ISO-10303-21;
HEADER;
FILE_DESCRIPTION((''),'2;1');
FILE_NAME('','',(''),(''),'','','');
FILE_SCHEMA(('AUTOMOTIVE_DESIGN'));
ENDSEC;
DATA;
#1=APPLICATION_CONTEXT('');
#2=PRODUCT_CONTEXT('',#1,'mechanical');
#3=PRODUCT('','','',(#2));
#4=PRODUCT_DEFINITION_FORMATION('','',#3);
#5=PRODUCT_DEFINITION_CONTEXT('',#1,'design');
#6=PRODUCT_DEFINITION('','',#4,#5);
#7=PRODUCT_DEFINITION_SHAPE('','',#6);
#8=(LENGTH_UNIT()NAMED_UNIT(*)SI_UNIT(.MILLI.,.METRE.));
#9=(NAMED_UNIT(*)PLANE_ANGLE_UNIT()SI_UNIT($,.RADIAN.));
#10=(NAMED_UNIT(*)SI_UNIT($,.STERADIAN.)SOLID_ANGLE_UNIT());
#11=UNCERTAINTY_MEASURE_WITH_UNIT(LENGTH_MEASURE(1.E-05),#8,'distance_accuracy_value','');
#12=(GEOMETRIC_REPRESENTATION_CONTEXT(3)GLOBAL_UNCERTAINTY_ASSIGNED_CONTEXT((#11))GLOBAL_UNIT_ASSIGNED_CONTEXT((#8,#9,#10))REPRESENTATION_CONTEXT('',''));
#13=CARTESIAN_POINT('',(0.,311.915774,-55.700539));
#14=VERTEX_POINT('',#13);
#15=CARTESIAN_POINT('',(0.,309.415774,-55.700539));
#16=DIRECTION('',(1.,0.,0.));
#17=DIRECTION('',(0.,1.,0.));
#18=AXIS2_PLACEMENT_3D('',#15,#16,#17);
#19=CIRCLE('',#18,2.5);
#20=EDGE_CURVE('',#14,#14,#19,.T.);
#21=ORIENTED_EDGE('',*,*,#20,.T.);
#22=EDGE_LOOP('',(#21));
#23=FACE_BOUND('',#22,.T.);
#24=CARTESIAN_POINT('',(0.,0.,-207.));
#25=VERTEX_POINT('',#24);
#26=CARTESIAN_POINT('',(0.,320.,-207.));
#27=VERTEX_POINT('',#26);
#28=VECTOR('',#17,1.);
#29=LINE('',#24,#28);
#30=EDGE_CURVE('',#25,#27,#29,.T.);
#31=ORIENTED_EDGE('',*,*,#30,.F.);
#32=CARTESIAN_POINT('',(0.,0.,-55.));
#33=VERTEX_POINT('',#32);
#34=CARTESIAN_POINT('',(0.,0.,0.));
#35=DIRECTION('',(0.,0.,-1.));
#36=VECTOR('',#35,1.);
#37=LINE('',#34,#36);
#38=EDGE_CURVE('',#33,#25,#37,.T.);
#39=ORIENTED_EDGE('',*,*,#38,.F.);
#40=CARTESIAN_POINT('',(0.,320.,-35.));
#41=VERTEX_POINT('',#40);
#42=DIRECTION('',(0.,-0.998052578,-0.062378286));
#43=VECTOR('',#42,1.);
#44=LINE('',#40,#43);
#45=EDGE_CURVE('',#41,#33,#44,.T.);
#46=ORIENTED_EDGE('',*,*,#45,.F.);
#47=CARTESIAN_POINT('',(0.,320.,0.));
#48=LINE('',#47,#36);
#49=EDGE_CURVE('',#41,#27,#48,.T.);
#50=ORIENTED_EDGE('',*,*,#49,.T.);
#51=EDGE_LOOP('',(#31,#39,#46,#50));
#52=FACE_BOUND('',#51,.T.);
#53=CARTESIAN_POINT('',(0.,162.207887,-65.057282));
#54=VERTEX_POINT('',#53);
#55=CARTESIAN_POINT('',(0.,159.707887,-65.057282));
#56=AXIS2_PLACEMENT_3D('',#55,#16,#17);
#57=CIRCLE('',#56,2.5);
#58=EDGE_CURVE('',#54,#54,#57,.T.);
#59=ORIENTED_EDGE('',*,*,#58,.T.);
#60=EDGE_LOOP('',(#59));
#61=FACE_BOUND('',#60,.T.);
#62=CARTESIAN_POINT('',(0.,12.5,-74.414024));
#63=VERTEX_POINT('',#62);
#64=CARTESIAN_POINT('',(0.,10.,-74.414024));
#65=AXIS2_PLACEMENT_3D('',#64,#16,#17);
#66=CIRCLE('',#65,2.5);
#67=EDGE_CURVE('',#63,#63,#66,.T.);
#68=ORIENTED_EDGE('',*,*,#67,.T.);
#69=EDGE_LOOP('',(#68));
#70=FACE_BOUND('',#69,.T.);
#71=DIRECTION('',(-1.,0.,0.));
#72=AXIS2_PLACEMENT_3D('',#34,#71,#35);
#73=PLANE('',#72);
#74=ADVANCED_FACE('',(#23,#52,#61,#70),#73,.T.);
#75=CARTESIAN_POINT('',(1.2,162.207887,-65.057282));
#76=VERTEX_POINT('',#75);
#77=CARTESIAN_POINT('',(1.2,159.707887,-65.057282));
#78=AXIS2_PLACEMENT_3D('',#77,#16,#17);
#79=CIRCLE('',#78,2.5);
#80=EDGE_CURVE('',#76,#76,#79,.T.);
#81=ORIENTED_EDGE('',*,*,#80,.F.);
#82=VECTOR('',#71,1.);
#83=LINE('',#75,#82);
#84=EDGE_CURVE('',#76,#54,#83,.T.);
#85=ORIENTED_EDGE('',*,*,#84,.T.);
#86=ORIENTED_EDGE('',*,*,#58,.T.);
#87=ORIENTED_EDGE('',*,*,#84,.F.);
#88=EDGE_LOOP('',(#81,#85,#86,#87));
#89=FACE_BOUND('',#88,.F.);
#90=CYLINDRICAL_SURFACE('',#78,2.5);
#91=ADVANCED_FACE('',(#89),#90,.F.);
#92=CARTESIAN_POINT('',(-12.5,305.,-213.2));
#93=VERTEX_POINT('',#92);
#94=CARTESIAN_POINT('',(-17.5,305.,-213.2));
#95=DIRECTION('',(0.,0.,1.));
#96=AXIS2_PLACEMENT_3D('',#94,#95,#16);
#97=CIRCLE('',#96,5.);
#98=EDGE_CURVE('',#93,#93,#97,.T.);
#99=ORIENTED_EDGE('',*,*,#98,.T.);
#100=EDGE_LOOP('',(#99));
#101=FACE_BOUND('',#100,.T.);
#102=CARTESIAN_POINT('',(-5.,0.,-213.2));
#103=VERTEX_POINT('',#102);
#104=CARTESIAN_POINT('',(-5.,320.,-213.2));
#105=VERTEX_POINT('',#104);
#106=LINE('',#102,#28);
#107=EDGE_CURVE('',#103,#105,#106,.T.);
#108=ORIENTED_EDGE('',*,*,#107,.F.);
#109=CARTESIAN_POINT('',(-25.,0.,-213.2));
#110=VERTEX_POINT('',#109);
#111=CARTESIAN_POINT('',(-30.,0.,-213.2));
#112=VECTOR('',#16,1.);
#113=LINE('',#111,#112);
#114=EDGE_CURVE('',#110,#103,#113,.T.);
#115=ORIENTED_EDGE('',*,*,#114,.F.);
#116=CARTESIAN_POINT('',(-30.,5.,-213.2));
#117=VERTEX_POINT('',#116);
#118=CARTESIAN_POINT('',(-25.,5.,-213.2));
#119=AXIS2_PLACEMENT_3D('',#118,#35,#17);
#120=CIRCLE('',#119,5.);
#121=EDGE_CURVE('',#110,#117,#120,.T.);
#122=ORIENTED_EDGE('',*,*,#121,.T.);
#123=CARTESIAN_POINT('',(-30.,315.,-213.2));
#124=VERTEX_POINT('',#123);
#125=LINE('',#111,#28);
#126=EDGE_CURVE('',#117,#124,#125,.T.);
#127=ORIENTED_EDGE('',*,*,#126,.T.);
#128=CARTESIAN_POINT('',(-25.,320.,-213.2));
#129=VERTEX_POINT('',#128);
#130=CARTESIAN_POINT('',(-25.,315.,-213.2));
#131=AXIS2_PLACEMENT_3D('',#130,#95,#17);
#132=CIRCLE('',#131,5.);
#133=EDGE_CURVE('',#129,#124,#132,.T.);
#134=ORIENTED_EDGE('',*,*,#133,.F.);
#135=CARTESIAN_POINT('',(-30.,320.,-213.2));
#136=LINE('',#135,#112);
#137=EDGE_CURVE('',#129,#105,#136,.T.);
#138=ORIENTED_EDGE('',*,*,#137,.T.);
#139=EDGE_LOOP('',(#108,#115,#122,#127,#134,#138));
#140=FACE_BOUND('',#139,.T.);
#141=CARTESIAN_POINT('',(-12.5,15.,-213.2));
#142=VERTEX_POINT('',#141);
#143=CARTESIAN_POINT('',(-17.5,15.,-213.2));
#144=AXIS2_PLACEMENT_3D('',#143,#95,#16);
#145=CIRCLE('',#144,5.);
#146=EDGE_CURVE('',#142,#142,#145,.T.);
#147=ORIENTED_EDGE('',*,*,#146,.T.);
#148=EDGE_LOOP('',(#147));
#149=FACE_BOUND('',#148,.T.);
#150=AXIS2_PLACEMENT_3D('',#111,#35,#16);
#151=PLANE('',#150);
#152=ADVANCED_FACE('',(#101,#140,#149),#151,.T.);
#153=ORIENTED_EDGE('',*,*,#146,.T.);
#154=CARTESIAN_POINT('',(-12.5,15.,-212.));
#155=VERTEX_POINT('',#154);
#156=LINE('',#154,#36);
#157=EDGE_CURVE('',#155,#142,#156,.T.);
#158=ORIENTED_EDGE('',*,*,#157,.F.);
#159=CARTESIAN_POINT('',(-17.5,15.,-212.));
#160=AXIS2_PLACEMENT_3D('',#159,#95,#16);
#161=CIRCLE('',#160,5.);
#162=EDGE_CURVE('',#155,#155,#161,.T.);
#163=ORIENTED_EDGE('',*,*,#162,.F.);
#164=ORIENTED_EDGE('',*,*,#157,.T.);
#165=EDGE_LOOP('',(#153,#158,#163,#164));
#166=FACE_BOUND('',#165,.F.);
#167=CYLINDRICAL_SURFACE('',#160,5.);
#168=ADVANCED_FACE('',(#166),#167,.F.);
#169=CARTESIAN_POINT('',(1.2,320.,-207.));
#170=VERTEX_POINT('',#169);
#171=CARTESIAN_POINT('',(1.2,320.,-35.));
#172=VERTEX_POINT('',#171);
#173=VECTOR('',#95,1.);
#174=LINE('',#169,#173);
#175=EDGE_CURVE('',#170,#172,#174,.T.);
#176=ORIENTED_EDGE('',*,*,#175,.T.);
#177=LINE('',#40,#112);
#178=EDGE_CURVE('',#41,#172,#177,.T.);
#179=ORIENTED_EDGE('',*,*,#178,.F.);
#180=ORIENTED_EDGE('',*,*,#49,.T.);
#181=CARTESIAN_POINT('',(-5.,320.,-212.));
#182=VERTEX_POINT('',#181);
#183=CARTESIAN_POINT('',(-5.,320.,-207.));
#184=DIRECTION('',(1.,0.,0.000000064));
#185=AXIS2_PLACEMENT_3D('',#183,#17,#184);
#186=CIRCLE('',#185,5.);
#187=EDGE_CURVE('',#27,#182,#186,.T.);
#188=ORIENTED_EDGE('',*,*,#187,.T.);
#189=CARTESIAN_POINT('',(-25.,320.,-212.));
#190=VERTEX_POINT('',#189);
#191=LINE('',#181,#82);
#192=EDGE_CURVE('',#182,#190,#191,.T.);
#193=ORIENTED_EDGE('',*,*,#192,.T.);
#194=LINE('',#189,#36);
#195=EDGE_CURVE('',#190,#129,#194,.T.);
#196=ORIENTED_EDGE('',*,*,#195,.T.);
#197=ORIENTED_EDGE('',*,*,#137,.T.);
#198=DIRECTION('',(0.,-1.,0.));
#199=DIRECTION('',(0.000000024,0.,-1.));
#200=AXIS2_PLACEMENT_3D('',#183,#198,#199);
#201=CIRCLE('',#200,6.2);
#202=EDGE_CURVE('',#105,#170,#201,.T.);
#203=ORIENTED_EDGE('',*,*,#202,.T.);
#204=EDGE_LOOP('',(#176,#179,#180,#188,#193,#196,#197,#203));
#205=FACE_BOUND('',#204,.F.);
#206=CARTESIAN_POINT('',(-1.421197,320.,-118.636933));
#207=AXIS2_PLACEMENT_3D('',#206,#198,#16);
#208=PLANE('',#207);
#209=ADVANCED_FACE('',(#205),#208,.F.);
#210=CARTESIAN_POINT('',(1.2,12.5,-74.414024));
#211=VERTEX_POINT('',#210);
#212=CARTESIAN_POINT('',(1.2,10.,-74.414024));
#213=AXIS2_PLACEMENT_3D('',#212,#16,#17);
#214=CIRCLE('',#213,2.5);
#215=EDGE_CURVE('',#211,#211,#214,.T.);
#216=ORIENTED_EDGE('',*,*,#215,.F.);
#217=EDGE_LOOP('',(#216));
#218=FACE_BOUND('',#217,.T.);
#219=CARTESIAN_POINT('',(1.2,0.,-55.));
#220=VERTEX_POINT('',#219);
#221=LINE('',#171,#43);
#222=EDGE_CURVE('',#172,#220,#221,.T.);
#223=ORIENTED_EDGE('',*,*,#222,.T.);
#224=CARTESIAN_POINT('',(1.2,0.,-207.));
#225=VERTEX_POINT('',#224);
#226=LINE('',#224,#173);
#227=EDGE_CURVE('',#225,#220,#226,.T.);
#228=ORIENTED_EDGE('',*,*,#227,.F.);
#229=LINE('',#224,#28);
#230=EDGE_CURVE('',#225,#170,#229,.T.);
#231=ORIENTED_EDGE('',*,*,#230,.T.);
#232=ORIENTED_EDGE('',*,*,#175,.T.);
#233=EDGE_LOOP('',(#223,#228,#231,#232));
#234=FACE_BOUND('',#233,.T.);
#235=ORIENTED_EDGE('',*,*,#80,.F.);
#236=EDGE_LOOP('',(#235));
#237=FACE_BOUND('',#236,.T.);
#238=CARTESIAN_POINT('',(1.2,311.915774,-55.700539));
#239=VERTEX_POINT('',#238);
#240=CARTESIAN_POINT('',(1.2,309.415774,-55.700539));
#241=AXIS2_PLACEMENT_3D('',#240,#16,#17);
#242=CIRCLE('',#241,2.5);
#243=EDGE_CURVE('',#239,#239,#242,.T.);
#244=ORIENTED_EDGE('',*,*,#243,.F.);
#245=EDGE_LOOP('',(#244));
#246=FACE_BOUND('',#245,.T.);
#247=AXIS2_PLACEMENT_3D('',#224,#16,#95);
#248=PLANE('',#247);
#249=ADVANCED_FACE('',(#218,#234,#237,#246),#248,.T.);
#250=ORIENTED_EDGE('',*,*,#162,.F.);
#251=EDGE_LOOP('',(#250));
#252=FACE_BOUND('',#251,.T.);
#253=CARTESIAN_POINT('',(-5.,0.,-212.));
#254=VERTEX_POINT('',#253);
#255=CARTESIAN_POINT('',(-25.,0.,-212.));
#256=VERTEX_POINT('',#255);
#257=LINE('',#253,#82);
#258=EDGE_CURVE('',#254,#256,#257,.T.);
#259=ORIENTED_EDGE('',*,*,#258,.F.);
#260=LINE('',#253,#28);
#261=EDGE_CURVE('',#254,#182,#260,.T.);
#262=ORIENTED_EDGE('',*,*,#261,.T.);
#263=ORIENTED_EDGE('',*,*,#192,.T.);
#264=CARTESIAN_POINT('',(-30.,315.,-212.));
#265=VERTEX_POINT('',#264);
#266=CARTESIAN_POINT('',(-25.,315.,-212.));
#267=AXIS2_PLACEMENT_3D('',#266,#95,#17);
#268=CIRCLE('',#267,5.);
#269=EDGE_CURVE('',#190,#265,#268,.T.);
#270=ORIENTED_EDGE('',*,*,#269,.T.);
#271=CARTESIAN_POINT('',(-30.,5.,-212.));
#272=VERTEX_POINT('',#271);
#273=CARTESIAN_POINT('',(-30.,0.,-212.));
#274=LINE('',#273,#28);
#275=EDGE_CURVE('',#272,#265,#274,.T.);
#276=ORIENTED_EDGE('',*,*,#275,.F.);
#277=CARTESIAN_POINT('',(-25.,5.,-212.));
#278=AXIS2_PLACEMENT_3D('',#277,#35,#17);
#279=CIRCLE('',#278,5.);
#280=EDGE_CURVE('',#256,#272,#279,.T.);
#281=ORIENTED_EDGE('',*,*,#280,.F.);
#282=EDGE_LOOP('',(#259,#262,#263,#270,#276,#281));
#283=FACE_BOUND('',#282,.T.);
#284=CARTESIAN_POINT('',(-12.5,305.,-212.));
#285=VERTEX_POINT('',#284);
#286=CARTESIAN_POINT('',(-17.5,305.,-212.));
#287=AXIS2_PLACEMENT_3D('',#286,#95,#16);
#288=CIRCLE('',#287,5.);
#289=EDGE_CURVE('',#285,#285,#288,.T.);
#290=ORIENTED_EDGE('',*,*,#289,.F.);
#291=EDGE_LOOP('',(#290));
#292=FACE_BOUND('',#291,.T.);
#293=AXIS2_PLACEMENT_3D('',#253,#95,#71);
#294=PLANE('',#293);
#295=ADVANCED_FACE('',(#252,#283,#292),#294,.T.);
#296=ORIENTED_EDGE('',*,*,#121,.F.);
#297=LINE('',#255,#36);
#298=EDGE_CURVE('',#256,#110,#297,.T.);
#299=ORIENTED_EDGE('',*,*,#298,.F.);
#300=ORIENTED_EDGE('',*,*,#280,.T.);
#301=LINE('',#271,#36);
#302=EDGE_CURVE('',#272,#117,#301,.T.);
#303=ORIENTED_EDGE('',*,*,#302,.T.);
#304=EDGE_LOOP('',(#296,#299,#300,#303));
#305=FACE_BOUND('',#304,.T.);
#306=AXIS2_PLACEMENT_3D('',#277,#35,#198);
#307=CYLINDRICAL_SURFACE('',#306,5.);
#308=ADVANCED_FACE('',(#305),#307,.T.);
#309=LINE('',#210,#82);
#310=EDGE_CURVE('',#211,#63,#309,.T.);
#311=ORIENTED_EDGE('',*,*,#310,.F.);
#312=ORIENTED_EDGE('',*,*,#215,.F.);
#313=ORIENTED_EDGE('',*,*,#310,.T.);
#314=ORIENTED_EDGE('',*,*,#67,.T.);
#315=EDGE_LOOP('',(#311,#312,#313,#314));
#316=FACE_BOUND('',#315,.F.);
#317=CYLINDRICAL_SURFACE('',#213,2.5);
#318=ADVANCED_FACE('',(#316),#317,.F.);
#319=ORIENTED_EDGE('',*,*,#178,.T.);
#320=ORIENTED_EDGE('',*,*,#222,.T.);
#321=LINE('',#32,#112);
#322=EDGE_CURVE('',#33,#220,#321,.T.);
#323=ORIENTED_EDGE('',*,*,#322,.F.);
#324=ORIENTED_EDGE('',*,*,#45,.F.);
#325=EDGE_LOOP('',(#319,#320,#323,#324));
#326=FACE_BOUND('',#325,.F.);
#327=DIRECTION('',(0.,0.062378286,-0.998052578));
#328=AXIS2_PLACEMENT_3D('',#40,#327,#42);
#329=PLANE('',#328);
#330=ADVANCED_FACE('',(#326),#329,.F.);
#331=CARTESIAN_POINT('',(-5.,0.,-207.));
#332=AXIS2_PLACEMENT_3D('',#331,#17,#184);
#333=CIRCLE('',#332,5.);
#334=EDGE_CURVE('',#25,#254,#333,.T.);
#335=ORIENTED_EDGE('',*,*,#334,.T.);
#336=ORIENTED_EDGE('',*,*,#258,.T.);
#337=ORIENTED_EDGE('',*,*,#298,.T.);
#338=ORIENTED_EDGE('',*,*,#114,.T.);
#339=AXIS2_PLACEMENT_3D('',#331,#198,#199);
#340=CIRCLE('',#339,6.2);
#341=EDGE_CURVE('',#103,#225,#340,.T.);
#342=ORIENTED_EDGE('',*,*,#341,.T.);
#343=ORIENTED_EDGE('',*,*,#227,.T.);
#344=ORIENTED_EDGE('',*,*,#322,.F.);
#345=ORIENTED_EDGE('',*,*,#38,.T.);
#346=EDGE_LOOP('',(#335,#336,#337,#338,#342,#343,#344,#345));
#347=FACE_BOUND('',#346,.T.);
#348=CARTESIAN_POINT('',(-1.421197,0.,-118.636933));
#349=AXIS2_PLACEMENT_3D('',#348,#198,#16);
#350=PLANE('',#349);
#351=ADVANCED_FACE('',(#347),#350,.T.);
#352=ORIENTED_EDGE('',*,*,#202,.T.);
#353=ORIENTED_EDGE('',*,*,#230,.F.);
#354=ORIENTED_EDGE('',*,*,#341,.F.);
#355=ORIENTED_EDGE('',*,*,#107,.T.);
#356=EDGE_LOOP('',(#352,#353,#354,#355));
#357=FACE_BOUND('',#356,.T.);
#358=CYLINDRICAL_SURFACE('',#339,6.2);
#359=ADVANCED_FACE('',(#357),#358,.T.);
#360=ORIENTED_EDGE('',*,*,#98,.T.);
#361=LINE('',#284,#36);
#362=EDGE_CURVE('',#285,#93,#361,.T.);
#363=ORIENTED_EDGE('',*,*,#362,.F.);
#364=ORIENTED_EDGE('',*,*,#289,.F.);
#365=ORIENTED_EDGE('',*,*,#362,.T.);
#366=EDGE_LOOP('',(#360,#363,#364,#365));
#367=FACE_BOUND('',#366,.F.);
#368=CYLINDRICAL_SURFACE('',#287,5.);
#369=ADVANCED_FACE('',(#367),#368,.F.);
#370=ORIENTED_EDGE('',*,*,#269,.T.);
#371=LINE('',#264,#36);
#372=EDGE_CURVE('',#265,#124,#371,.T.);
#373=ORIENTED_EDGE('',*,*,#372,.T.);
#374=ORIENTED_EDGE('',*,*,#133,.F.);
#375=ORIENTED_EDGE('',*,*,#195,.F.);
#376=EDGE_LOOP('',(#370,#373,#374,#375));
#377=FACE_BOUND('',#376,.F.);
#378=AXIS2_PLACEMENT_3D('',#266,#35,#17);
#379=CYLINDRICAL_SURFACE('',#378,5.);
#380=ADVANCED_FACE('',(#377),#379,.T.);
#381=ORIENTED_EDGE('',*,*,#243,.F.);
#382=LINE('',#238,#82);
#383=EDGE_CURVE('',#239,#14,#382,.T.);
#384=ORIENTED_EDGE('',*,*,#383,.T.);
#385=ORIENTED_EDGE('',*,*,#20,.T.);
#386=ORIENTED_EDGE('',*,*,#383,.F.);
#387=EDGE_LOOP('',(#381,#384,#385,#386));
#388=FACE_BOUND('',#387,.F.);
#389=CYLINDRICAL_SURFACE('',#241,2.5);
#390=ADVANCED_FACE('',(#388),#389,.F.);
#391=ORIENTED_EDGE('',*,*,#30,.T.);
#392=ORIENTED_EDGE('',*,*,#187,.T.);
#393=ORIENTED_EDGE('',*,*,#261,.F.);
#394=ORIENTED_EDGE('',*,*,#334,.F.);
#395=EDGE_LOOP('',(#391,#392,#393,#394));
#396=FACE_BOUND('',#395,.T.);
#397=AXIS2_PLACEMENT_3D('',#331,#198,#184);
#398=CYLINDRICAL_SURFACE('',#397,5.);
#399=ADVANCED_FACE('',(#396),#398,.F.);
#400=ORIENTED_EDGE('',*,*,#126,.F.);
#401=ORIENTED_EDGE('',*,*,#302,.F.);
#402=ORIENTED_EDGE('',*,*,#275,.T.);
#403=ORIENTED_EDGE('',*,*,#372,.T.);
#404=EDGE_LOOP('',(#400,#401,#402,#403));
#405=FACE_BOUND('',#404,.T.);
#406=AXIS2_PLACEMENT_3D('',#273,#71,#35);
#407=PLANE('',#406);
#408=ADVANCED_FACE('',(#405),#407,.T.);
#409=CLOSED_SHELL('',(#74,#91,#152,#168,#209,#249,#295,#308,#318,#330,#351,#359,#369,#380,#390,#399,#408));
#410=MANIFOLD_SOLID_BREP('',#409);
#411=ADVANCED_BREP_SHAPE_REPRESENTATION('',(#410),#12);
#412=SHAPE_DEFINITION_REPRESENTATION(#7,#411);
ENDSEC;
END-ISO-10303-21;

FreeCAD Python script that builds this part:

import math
import FreeCAD as App
import Part
import Sketcher
from FreeCAD import Vector
Q = App.Units.Quantity


def edges_at(feature, points):
    """Names of the edges that pass closest to the given points."""
    edges = feature.Shape.Edges
    near = lambda p: min(range(len(edges)), key=lambda i: edges[i].distToShape(Part.Vertex(*p))[0])
    return sorted({f"Edge{near(p) + 1}" for p in points})


def add_polygon(sketch, points):
    """Adds a closed chain of lines whose ends are joined by coincident constraints."""
    first, n = sketch.GeometryCount, len(points)
    for a, b in zip(points, points[1:] + points[:1]):
        sketch.addGeometry(Part.LineSegment(App.Vector(*a, 0), App.Vector(*b, 0)), False)
    for i in range(n):
        sketch.addConstraint(Sketcher.Constraint("Coincident", first + i, 2, first + (i + 1) % n, 1))

doc = App.newDocument("Part")
body = doc.addObject("PartDesign::Body", "Body")

sketch1 = body.newObject("Sketcher::SketchObject", "Sketch")
sketch1.AttachmentSupport = (doc.getObject("XZ_Plane"), [""])
sketch1.MapMode = "FlatFace"
sketch1.addGeometry([
    Part.LineSegment(Vector(1.2, 0, 0), Vector(0, 0, 0)),
    Part.LineSegment(Vector(0, 0, 0), Vector(0, -207, 0)),
    Part.ArcOfCircle(Part.Circle(Vector(-5, -207, 0), Vector(0, 0, 1), 5), math.radians(-90), math.radians(0)),
    Part.LineSegment(Vector(-5, -212, 0), Vector(-30, -212, 0)),
    Part.LineSegment(Vector(-30, -212, 0), Vector(-30, -213.2, 0)),
    Part.LineSegment(Vector(-30, -213.2, 0), Vector(-5, -213.2, 0)),
    Part.ArcOfCircle(Part.Circle(Vector(-5, -207, 0), Vector(0, 0, 1), 6.2), math.radians(-90), math.radians(0)),
    Part.LineSegment(Vector(1.2, -207, 0), Vector(1.2, 0, 0)),
], False)
sketch1.addConstraint([
    Sketcher.Constraint("Coincident", 0, 2, 1, 1),
    Sketcher.Constraint("Tangent", 1, 2, 2, 2),
    Sketcher.Constraint("Tangent", 2, 1, 3, 1),
    Sketcher.Constraint("Coincident", 3, 2, 4, 1),
    Sketcher.Constraint("Coincident", 4, 2, 5, 1),
    Sketcher.Constraint("Tangent", 5, 2, 6, 1),
    Sketcher.Constraint("Tangent", 6, 2, 7, 1),
    Sketcher.Constraint("Coincident", 7, 2, 0, 1),
    Sketcher.Constraint("Horizontal", 0),
    Sketcher.Constraint("Vertical", 1),
    Sketcher.Constraint("Horizontal", 3),
    Sketcher.Constraint("Vertical", 4),
    Sketcher.Constraint("Horizontal", 5),
    Sketcher.Constraint("Vertical", 7),
    Sketcher.Constraint("Coincident", 0, 2, -1, 1),
    Sketcher.Constraint("Coincident", 6, 3, 2, 3),
    Sketcher.Constraint("Radius", 2, Q("5 mm")),
    Sketcher.Constraint("Radius", 6, Q("6.2 mm")),
    Sketcher.Constraint("DistanceX", 3, 2, 3, 1, Q("25 mm")),
    Sketcher.Constraint("DistanceY", 1, 2, 1, 1, Q("207 mm")),
])
pad1 = body.newObject("PartDesign::Pad", "Pad")
pad1.Profile = sketch1
pad1.Length = 320
pad1.Reversed = True

sketch2 = body.newObject("Sketcher::SketchObject", "Sketch001")
sketch2.AttachmentSupport = (doc.getObject("XY_Plane"), [""])
sketch2.MapMode = "FlatFace"
sketch2.AttachmentOffset = App.Placement(Vector(0, 0, -212), App.Rotation())
sketch2.addGeometry([
    Part.Circle(Vector(-18, 305, 0), Vector(0, 0, 1), 5),
    Part.Circle(Vector(-18, 15, 0), Vector(0, 0, 1), 5),
], False)
sketch2.addConstraint([
    Sketcher.Constraint("Equal", 0, 1),
    Sketcher.Constraint("Vertical", 0, 3, 1, 3),
    Sketcher.Constraint("Diameter", 0, Q("10 mm")),
    Sketcher.Constraint("DistanceY", -1, 1, 0, 3, Q("305 mm")),
    Sketcher.Constraint("DistanceY", -1, 1, 1, 3, Q("15 mm")),
    Sketcher.Constraint("DistanceX", 0, 3, -1, 1, Q("17.5 mm")),
])
pocket1 = body.newObject("PartDesign::Pocket", "Pocket")
pocket1.Profile = sketch2
pocket1.Type = "ThroughAll"
doc.recompute()

fillet = body.newObject("PartDesign::Fillet", "Fillet")
fillet.Base = (pocket1, edges_at(pocket1, [(-30, 320, -212.6), (-30, 0, -212.6)]))
fillet.Radius = 5

sketch3 = body.newObject("Sketcher::SketchObject", "Sketch002")
sketch3.AttachmentSupport = (doc.getObject("YZ_Plane"), [""])
sketch3.MapMode = "FlatFace"
add_polygon(sketch3, [(0, 0), (320, 0), (320, -35), (0, -55)])
sketch3.addConstraint([
    Sketcher.Constraint("Horizontal", 0),
    Sketcher.Constraint("Vertical", 1),
    Sketcher.Constraint("Vertical", 3),
    Sketcher.Constraint("Coincident", 3, 2, -1, 1),
    Sketcher.Constraint("DistanceX", 0, 1, 0, 2, Q("320 mm")),
    Sketcher.Constraint("DistanceY", 1, 2, 1, 1, Q("35 mm")),
    Sketcher.Constraint("DistanceY", 3, 1, 3, 2, Q("55 mm")),
])
pocket2 = body.newObject("PartDesign::Pocket", "Pocket001")
pocket2.Profile = sketch3
pocket2.Type = "ThroughAll"
pocket2.Reversed = True

sketch4 = body.newObject("Sketcher::SketchObject", "Sketch003")
sketch4.AttachmentSupport = (doc.getObject("YZ_Plane"), [""])
sketch4.MapMode = "FlatFace"
sketch4.AttachmentOffset = App.Placement(Vector(0, 0, 1.2), App.Rotation())
sketch4.addGeometry([
    Part.Circle(Vector(10, -74.4, 0), Vector(0, 0, 1), 2.5),
    Part.Circle(Vector(159.7, -65.1, 0), Vector(0, 0, 1), 2.5),
    Part.Circle(Vector(309.4, -55.7, 0), Vector(0, 0, 1), 2.5),
], False)
sketch4.addConstraint([
    Sketcher.Constraint("Equal", 0, 1),
    Sketcher.Constraint("Equal", 1, 2),
    Sketcher.Constraint("Diameter", 0, Q("5 mm")),
    Sketcher.Constraint("DistanceX", -1, 1, 0, 3, Q("10 mm")),
    Sketcher.Constraint("DistanceY", 1, 3, -1, 1, Q("65.057282 mm")),
    Sketcher.Constraint("DistanceY", 2, 3, -1, 1, Q("55.700539 mm")),
    Sketcher.Constraint("DistanceY", 0, 3, 1, 3, Q("9.356742 mm")),
    Sketcher.Constraint("DistanceX", -1, 1, 1, 3, Q("159.707887 mm")),
    Sketcher.Constraint("DistanceX", -1, 1, 2, 3, Q("309.415774 mm")),
])
pocket3 = body.newObject("PartDesign::Pocket", "Pocket002")
pocket3.Profile = sketch4
pocket3.Type = "ThroughAll"

doc.recompute()
